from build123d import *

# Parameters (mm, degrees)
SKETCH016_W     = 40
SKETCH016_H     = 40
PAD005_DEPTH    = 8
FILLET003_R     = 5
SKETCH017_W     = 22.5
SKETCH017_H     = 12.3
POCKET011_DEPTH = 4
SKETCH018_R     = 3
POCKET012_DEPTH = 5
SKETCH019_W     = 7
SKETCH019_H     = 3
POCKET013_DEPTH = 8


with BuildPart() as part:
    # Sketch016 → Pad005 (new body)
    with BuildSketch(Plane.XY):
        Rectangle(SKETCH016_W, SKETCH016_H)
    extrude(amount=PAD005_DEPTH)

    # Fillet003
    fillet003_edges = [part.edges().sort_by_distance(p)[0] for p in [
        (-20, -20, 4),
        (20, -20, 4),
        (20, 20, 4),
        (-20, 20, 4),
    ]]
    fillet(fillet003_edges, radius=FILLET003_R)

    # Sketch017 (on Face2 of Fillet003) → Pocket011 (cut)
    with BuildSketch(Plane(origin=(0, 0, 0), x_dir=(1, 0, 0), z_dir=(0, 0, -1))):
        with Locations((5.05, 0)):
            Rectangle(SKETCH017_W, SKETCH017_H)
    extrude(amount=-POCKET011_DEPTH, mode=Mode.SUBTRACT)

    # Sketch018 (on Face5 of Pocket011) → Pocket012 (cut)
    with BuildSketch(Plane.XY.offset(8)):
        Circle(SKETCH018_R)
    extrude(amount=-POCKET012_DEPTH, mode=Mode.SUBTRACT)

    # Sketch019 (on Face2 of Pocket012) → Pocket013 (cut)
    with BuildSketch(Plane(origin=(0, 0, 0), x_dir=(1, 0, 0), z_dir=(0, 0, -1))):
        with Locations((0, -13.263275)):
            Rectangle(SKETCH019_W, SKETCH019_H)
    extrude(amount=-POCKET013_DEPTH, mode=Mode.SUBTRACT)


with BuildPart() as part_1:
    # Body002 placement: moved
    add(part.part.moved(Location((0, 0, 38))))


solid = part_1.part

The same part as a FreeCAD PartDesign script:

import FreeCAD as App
import Part
import Sketcher


def edges_at(feature, points):
    """Names of the edges that pass closest to the given points."""
    edges = feature.Shape.Edges
    near = lambda p: min(range(len(edges)), key=lambda i: edges[i].distToShape(Part.Vertex(*p))[0])
    return sorted({f"Edge{near(p) + 1}" for p in points})


def add_polygon(sketch, points):
    """Adds a closed chain of lines whose ends are joined by coincident constraints."""
    first, n = sketch.GeometryCount, len(points)
    for a, b in zip(points, points[1:] + points[:1]):
        sketch.addGeometry(Part.LineSegment(App.Vector(*a, 0), App.Vector(*b, 0)), False)
    for i in range(n):
        sketch.addConstraint(Sketcher.Constraint("Coincident", first + i, 2, first + (i + 1) % n, 1))

doc = App.newDocument("Part")
body = doc.addObject("PartDesign::Body", "Body")

sketch1 = body.newObject("Sketcher::SketchObject", "Sketch")
sketch1.AttachmentSupport = (doc.getObject("XY_Plane"), [""])
sketch1.MapMode = "FlatFace"
add_polygon(sketch1, [(-20, 20), (-20, -20), (20, -20), (20, 20)])
sketch1.addConstraint([
    Sketcher.Constraint("Vertical", 0),
    Sketcher.Constraint("Horizontal", 1),
    Sketcher.Constraint("Vertical", 2),
    Sketcher.Constraint("Horizontal", 3),
    Sketcher.Constraint("Symmetric", 0, 2, 2, 2, -1, 1),
    Sketcher.Constraint("Equal", 3, 0),
    Sketcher.Constraint("DistanceX", 1, 1, 1, 2, 40.0),
])
pad1 = body.newObject("PartDesign::Pad", "Pad")
pad1.Profile = sketch1
pad1.Length = 8
doc.recompute()

fillet = body.newObject("PartDesign::Fillet", "Fillet")
fillet.Base = (pad1, edges_at(pad1, [
    (-20, -20, 4),
    (20, -20, 4),
    (20, 20, 4),
    (-20, 20, 4),
]))
fillet.Radius = 5

sketch2 = body.newObject("Sketcher::SketchObject", "Sketch001")
sketch2.AttachmentSupport = (doc.getObject("XY_Plane"), [""])
sketch2.MapMode = "FlatFace"
add_polygon(sketch2, [(-6.2, -6.15), (-6.2, 6.15), (16.3, 6.15), (16.3, -6.15)])
sketch2.addConstraint([
    Sketcher.Constraint("Vertical", 0),
    Sketcher.Constraint("Horizontal", 1),
    Sketcher.Constraint("Vertical", 2),
    Sketcher.Constraint("Horizontal", 3),
    Sketcher.Constraint("DistanceX", 1, 1, 1, 2, 22.5),
    Sketcher.Constraint("DistanceY", 0, 1, 0, 2, 12.3),
    Sketcher.Constraint("DistanceX", 0, 2, -1, 1, 6.2),
    Sketcher.Constraint("DistanceY", -1, 1, 0, 2, 6.15),
])
pocket1 = body.newObject("PartDesign::Pocket", "Pocket")
pocket1.Profile = sketch2
pocket1.Length = 4
pocket1.Reversed = True

sketch3 = body.newObject("Sketcher::SketchObject", "Sketch002")
sketch3.AttachmentSupport = (doc.getObject("XY_Plane"), [""])
sketch3.MapMode = "FlatFace"
sketch3.AttachmentOffset = App.Placement(App.Vector(0, 0, 8), App.Rotation())
sketch3.addGeometry(Part.Circle(App.Vector(0, 0, 0), App.Vector(0, 0, 1), 3), False)
sketch3.addConstraint([
    Sketcher.Constraint("Coincident", 0, 3, -1, 1),
    Sketcher.Constraint("Diameter", 0, 6.0),
])
pocket2 = body.newObject("PartDesign::Pocket", "Pocket001")
pocket2.Profile = sketch3
pocket2.Length = 5

sketch4 = body.newObject("Sketcher::SketchObject", "Sketch003")
sketch4.AttachmentSupport = (doc.getObject("XY_Plane"), [""])
sketch4.MapMode = "FlatFace"
add_polygon(sketch4, [(-3.5, 11.763275), (-3.5, 14.763275), (3.5, 14.763275), (3.5, 11.763275)])
sketch4.addConstraint([
    Sketcher.Constraint("Vertical", 0),
    Sketcher.Constraint("Horizontal", 1),
    Sketcher.Constraint("Vertical", 2),
    Sketcher.Constraint("Horizontal", 3),
    Sketcher.Constraint("DistanceX", 1, 1, 1, 2, 7.0),
    Sketcher.Constraint("DistanceY", 0, 1, 0, 2, 3.0),
    Sketcher.Constraint("DistanceX", 0, 2, -1, 1, 3.5),
    Sketcher.Constraint("DistanceY", -1, 1, 0, 2, 14.763275),
])
pocket3 = body.newObject("PartDesign::Pocket", "Pocket002")
pocket3.Profile = sketch4
pocket3.Length = 8
pocket3.Reversed = True
body2 = doc.addObject("PartDesign::Body", "Body001")
doc.recompute()

body.Placement = App.Placement(App.Vector(0, 0, 38), App.Rotation(App.Vector(0, 0, 1), 0))
boolean = body2.newObject("PartDesign::Boolean", "Boolean")
boolean.Type = "Fuse"
boolean.addObjects([body])

doc.recompute()
